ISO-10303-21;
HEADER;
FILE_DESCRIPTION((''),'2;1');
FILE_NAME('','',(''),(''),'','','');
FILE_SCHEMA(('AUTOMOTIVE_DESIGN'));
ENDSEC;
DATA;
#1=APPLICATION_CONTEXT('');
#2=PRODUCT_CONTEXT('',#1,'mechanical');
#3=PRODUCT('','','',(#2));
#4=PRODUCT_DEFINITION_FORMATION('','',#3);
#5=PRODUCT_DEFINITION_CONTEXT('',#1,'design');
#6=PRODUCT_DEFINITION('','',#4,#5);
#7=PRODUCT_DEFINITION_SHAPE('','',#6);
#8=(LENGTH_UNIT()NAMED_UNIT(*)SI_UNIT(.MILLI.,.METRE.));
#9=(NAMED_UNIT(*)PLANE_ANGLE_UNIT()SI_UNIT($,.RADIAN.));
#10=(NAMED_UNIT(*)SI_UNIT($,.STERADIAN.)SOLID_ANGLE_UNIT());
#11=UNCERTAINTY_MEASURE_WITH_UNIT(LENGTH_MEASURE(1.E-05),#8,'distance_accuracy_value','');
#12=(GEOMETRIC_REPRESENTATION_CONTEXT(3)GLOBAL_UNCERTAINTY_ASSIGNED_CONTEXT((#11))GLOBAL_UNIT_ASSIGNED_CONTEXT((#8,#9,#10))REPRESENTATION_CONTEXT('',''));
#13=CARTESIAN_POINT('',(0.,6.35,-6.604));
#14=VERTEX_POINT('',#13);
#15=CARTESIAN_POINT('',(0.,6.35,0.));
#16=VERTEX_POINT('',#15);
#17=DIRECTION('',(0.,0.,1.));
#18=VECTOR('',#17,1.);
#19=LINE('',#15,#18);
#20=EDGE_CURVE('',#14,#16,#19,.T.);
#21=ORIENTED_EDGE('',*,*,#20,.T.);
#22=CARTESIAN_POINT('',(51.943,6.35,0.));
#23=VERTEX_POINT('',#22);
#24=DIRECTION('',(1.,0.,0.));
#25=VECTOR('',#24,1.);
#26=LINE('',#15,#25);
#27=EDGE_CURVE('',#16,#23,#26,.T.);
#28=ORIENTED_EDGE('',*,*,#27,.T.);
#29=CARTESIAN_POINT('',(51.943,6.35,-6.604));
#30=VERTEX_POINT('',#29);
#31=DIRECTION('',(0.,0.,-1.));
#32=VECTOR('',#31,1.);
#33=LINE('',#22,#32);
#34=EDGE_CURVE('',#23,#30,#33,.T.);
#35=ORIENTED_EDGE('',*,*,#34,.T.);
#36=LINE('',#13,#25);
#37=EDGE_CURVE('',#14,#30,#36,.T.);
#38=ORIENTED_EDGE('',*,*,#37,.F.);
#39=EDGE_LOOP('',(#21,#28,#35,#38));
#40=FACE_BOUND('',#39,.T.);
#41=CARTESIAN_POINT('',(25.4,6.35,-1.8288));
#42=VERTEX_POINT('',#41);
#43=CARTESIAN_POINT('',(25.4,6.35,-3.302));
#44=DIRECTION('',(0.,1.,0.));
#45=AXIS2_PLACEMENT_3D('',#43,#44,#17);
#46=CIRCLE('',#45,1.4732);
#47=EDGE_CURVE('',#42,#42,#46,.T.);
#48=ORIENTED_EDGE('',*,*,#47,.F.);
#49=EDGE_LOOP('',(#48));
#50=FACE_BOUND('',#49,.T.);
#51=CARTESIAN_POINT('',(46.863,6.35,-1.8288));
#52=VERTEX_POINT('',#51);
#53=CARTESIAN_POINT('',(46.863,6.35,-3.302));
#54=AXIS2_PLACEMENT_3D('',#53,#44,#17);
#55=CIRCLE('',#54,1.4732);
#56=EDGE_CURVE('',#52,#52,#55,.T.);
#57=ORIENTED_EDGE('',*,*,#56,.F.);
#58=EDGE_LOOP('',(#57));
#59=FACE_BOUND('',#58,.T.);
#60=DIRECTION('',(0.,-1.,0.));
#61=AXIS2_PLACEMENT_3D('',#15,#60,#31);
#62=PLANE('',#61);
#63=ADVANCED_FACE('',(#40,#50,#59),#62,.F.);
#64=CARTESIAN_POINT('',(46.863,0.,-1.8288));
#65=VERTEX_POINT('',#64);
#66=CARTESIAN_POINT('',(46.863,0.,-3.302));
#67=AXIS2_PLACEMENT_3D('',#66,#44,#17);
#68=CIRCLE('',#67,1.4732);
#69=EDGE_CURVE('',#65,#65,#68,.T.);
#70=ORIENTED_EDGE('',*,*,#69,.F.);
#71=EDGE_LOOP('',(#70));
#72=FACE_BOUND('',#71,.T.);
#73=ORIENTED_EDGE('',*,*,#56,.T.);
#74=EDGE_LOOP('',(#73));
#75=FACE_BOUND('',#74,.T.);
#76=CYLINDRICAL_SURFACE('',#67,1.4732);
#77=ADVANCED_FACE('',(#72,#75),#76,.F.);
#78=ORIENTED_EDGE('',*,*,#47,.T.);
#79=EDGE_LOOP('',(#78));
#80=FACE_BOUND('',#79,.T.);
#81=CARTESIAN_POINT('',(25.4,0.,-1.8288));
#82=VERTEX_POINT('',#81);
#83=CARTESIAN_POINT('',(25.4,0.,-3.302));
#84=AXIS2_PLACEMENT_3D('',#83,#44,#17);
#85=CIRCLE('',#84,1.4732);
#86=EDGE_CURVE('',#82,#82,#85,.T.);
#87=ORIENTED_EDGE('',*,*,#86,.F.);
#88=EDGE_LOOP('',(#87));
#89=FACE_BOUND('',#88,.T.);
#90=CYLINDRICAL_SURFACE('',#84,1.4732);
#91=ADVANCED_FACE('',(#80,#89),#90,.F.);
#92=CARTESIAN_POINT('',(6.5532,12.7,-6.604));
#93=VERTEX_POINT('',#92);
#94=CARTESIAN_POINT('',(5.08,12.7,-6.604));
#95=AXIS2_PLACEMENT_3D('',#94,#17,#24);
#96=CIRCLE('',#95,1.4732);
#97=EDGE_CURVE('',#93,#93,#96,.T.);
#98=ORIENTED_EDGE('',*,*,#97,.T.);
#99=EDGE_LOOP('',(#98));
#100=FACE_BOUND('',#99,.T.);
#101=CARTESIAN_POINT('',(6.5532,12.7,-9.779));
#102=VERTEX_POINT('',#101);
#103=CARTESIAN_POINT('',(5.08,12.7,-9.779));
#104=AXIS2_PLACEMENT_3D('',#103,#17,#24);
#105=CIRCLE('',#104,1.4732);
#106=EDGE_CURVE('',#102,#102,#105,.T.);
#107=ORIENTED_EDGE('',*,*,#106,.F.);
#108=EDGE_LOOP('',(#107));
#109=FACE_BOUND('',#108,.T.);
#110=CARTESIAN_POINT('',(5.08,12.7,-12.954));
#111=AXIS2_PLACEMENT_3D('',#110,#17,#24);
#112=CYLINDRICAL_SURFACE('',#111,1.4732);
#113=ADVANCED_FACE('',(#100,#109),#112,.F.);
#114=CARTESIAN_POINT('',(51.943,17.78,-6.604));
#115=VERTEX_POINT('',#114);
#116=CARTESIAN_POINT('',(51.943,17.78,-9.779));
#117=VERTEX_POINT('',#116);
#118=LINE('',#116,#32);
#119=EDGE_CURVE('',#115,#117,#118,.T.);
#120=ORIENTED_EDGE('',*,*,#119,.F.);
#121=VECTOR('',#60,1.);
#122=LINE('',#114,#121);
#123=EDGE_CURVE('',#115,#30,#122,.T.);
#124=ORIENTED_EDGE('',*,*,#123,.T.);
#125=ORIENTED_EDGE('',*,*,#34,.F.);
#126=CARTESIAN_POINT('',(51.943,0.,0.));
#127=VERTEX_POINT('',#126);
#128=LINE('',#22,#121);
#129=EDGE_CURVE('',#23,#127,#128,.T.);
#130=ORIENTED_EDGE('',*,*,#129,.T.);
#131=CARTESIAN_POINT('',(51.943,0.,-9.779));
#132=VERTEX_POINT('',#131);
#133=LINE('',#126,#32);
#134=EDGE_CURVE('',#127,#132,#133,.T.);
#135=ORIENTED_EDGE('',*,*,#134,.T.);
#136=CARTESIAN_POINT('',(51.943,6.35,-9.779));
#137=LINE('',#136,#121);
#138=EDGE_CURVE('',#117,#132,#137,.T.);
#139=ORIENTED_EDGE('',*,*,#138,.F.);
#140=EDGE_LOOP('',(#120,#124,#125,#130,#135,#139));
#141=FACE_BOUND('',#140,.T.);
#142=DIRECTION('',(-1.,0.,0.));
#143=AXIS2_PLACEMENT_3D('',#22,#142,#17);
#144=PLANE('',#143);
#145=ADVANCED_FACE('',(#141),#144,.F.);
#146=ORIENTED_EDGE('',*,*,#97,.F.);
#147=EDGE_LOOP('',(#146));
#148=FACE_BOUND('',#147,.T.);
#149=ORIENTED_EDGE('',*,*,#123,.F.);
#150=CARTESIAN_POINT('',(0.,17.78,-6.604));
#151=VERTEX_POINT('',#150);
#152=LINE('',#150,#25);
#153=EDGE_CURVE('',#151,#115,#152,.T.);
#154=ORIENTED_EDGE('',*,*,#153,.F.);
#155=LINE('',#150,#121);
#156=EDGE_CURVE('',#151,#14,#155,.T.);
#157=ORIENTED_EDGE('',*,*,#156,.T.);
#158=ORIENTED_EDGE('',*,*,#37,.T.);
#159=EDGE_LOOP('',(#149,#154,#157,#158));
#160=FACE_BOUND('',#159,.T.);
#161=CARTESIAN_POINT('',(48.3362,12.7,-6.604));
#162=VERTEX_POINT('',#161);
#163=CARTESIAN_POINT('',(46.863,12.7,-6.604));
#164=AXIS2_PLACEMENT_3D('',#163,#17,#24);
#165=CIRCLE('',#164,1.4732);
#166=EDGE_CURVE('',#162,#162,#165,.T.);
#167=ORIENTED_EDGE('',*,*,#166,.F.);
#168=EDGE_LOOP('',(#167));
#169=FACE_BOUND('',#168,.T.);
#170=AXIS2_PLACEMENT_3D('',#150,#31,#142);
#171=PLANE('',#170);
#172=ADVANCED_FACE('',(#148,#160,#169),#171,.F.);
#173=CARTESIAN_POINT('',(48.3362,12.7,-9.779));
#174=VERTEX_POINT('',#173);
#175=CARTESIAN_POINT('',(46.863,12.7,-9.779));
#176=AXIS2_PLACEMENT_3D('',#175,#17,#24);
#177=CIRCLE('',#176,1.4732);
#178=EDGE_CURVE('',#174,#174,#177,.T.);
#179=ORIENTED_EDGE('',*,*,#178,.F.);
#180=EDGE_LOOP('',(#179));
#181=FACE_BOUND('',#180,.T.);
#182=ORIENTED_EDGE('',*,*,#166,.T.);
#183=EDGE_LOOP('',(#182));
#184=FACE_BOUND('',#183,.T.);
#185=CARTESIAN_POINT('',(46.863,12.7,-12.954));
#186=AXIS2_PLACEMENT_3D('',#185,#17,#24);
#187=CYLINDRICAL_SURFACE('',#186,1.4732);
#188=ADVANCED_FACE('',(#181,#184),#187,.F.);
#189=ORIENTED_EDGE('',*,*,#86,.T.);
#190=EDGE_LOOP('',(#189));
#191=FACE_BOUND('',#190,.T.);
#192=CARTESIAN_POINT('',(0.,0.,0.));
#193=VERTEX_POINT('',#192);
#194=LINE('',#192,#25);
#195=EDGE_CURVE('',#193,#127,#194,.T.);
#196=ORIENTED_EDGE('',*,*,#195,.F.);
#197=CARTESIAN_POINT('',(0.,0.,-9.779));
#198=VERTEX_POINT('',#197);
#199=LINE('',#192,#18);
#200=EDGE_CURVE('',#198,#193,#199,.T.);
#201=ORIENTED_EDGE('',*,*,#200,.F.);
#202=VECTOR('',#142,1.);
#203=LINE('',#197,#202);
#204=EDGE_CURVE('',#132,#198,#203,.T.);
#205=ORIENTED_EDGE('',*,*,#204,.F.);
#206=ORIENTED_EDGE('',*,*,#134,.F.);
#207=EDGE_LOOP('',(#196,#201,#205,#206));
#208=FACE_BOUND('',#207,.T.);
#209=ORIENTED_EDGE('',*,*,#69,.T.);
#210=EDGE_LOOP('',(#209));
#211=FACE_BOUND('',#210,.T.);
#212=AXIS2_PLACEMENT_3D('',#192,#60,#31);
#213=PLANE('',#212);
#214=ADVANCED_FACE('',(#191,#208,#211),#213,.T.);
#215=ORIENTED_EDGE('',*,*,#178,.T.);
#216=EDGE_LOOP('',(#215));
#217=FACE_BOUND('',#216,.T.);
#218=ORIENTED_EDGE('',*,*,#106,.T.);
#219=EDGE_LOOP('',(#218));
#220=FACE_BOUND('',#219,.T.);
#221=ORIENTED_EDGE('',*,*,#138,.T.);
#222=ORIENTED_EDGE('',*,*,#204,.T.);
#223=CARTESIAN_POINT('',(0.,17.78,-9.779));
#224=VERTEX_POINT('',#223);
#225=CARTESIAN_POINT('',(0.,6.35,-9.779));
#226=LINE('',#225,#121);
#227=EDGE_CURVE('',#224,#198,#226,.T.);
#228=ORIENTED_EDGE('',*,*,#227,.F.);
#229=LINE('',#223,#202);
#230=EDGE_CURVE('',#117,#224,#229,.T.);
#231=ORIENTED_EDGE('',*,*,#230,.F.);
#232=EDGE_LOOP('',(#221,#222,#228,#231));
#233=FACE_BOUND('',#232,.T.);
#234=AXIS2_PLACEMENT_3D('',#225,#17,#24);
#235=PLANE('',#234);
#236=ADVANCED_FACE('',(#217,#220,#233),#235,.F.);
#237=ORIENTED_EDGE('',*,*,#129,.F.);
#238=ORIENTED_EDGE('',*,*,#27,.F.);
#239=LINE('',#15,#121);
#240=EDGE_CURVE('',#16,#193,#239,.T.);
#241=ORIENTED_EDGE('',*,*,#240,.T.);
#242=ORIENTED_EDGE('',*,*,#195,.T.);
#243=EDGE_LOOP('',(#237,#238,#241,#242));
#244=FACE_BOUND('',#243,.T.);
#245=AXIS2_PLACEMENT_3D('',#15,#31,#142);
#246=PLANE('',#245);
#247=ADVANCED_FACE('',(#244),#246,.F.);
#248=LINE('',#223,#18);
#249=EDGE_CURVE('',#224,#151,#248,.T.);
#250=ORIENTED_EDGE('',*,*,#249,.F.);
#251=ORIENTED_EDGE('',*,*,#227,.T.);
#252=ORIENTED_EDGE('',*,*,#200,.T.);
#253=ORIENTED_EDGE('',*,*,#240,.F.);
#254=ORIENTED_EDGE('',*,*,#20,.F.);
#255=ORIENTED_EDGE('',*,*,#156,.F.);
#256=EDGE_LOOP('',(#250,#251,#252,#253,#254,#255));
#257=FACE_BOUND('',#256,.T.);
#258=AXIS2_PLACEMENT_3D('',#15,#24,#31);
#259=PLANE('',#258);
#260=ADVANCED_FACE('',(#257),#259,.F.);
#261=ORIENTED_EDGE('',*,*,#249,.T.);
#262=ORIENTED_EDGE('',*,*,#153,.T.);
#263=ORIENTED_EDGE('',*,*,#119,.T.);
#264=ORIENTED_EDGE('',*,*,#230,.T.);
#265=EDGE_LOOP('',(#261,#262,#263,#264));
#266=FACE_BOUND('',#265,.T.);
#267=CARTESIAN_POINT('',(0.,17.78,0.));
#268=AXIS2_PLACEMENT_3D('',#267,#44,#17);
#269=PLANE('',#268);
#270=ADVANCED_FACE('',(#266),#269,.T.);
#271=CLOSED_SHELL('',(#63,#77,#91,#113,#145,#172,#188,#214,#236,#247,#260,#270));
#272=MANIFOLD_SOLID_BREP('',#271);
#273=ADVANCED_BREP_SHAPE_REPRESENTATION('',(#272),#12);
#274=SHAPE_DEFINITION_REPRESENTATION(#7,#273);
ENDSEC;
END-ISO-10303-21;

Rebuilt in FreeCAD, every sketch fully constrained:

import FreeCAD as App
import Part
import Sketcher
from FreeCAD import Vector
Q = App.Units.Quantity

doc = App.newDocument("Part")
body = doc.addObject("PartDesign::Body", "Body")

sketch1 = doc.addObject("Sketcher::SketchObject", "Sketch")
body.addObject(sketch1)
sketch1.AttachmentSupport = (doc.XZ_Plane, [""])
sketch1.MapMode = "FlatFace"
sketch1.addGeometry(Part.LineSegment(Vector(0, -9.779, 0), Vector(0, 0, 0)), False)
sketch1.addGeometry(Part.LineSegment(Vector(0, 0, 0), Vector(51.943, 0, 0)), False)
sketch1.addGeometry(Part.LineSegment(Vector(51.943, 0, 0), Vector(51.943, -9.779, 0)), False)
sketch1.addGeometry(Part.LineSegment(Vector(51.943, -9.779, 0), Vector(0, -9.779, 0)), False)
sketch1.addConstraint(Sketcher.Constraint("Coincident", 0, 2, 1, 1))
sketch1.addConstraint(Sketcher.Constraint("Coincident", 1, 2, 2, 1))
sketch1.addConstraint(Sketcher.Constraint("Coincident", 2, 2, 3, 1))
sketch1.addConstraint(Sketcher.Constraint("Coincident", 3, 2, 0, 1))
sketch1.addConstraint(Sketcher.Constraint("Vertical", 0))
sketch1.addConstraint(Sketcher.Constraint("Horizontal", 1))
sketch1.addConstraint(Sketcher.Constraint("Vertical", 2))
sketch1.addConstraint(Sketcher.Constraint("Horizontal", 3))
sketch1.addConstraint(Sketcher.Constraint("Coincident", 0, 2, -1, 1))
sketch1.addConstraint(Sketcher.Constraint("DistanceX", 1, 1, 1, 2, Q("2.045 in")))
sketch1.addConstraint(Sketcher.Constraint("DistanceY", 0, 1, 0, 2, Q("0.385 in")))
pad1 = doc.addObject("PartDesign::Pad", "Pad")
body.addObject(pad1)
pad1.Profile = sketch1
pad1.Length = Q("0.25 in")
pad1.Reversed = True

sketch2 = doc.addObject("Sketcher::SketchObject", "Sketch001")
body.addObject(sketch2)
sketch2.AttachmentSupport = (doc.XZ_Plane, [""])
sketch2.MapMode = "FlatFace"
sketch2.AttachmentOffset = App.Placement(Vector(0, 0, -0.25 * 25.4), App.Rotation())
sketch2.addGeometry(Part.LineSegment(Vector(0, -9.779, 0), Vector(0, -6.604, 0)), False)
sketch2.addGeometry(Part.LineSegment(Vector(0, -6.604, 0), Vector(51.943, -6.604, 0)), False)
sketch2.addGeometry(Part.LineSegment(Vector(51.943, -6.604, 0), Vector(51.943, -9.779, 0)), False)
sketch2.addGeometry(Part.LineSegment(Vector(51.943, -9.779, 0), Vector(0, -9.779, 0)), False)
sketch2.addConstraint(Sketcher.Constraint("Coincident", 0, 2, 1, 1))
sketch2.addConstraint(Sketcher.Constraint("Coincident", 1, 2, 2, 1))
sketch2.addConstraint(Sketcher.Constraint("Coincident", 2, 2, 3, 1))
sketch2.addConstraint(Sketcher.Constraint("Coincident", 3, 2, 0, 1))
sketch2.addConstraint(Sketcher.Constraint("Vertical", 0))
sketch2.addConstraint(Sketcher.Constraint("Horizontal", 1))
sketch2.addConstraint(Sketcher.Constraint("Vertical", 2))
sketch2.addConstraint(Sketcher.Constraint("Horizontal", 3))
sketch2.addConstraint(Sketcher.Constraint("PointOnObject", 0, 2, -2))
sketch2.addConstraint(Sketcher.Constraint("DistanceX", 1, 1, 1, 2, Q("2.045 in")))
sketch2.addConstraint(Sketcher.Constraint("DistanceY", 0, 1, 0, 2, Q("0.125 in")))
sketch2.addConstraint(Sketcher.Constraint("DistanceY", 0, 2, -1, 1, Q("0.26 in")))
pad2 = doc.addObject("PartDesign::Pad", "Pad001")
body.addObject(pad2)
pad2.Profile = sketch2
pad2.Length = Q("0.45 in")
pad2.Reversed = True

sketch3 = doc.addObject("Sketcher::SketchObject", "Sketch002")
body.addObject(sketch3)
sketch3.AttachmentSupport = (doc.XY_Plane, [""])
sketch3.MapMode = "FlatFace"
sketch3.AttachmentOffset = App.Placement(Vector(0, 0, -0.26 * 25.4), App.Rotation())
sketch3.addGeometry(Part.Circle(Vector(46.863, 12.7, 0), Vector(0, 0, 1), 1.4732), False)
sketch3.addGeometry(Part.Circle(Vector(5.08, 12.7, 0), Vector(0, 0, 1), 1.4732), False)
sketch3.addConstraint(Sketcher.Constraint("Equal", 0, 1))
sketch3.addConstraint(Sketcher.Constraint("Horizontal", 0, 3, 1, 3))
sketch3.addConstraint(Sketcher.Constraint("Diameter", 0, Q("0.116 in")))
sketch3.addConstraint(Sketcher.Constraint("DistanceY", -1, 1, 0, 3, Q("0.5 in")))
sketch3.addConstraint(Sketcher.Constraint("DistanceX", -1, 1, 1, 3, Q("0.2 in")))
sketch3.addConstraint(Sketcher.Constraint("DistanceX", -1, 1, 0, 3, Q("1.845 in")))
pocket1 = doc.addObject("PartDesign::Pocket", "Pocket")
body.addObject(pocket1)
pocket1.Profile = sketch3
pocket1.Length = Q("0.25 in")

sketch4 = doc.addObject("Sketcher::SketchObject", "Sketch003")
body.addObject(sketch4)
sketch4.AttachmentSupport = (doc.XZ_Plane, [""])
sketch4.MapMode = "FlatFace"
sketch4.AttachmentOffset = App.Placement(Vector(0, 0, -0.25 * 25.4), App.Rotation())
sketch4.addGeometry(Part.Circle(Vector(25.4, -3.302, 0), Vector(0, 0, 1), 1.4732), False)
sketch4.addGeometry(Part.Circle(Vector(46.863, -3.302, 0), Vector(0, 0, 1), 1.4732), False)
sketch4.addConstraint(Sketcher.Constraint("Equal", 0, 1))
sketch4.addConstraint(Sketcher.Constraint("Horizontal", 0, 3, 1, 3))
sketch4.addConstraint(Sketcher.Constraint("Diameter", 0, Q("0.116 in")))
sketch4.addConstraint(Sketcher.Constraint("DistanceX", -1, 1, 0, 3, Q("1 in")))
sketch4.addConstraint(Sketcher.Constraint("DistanceY", 0, 3, -1, 1, Q("0.13 in")))
sketch4.addConstraint(Sketcher.Constraint("DistanceX", -1, 1, 1, 3, Q("1.845 in")))
pocket2 = doc.addObject("PartDesign::Pocket", "Pocket001")
body.addObject(pocket2)
pocket2.Profile = sketch4
pocket2.Length = Q("0.25 in")
pocket2.Reversed = True

doc.recompute()
